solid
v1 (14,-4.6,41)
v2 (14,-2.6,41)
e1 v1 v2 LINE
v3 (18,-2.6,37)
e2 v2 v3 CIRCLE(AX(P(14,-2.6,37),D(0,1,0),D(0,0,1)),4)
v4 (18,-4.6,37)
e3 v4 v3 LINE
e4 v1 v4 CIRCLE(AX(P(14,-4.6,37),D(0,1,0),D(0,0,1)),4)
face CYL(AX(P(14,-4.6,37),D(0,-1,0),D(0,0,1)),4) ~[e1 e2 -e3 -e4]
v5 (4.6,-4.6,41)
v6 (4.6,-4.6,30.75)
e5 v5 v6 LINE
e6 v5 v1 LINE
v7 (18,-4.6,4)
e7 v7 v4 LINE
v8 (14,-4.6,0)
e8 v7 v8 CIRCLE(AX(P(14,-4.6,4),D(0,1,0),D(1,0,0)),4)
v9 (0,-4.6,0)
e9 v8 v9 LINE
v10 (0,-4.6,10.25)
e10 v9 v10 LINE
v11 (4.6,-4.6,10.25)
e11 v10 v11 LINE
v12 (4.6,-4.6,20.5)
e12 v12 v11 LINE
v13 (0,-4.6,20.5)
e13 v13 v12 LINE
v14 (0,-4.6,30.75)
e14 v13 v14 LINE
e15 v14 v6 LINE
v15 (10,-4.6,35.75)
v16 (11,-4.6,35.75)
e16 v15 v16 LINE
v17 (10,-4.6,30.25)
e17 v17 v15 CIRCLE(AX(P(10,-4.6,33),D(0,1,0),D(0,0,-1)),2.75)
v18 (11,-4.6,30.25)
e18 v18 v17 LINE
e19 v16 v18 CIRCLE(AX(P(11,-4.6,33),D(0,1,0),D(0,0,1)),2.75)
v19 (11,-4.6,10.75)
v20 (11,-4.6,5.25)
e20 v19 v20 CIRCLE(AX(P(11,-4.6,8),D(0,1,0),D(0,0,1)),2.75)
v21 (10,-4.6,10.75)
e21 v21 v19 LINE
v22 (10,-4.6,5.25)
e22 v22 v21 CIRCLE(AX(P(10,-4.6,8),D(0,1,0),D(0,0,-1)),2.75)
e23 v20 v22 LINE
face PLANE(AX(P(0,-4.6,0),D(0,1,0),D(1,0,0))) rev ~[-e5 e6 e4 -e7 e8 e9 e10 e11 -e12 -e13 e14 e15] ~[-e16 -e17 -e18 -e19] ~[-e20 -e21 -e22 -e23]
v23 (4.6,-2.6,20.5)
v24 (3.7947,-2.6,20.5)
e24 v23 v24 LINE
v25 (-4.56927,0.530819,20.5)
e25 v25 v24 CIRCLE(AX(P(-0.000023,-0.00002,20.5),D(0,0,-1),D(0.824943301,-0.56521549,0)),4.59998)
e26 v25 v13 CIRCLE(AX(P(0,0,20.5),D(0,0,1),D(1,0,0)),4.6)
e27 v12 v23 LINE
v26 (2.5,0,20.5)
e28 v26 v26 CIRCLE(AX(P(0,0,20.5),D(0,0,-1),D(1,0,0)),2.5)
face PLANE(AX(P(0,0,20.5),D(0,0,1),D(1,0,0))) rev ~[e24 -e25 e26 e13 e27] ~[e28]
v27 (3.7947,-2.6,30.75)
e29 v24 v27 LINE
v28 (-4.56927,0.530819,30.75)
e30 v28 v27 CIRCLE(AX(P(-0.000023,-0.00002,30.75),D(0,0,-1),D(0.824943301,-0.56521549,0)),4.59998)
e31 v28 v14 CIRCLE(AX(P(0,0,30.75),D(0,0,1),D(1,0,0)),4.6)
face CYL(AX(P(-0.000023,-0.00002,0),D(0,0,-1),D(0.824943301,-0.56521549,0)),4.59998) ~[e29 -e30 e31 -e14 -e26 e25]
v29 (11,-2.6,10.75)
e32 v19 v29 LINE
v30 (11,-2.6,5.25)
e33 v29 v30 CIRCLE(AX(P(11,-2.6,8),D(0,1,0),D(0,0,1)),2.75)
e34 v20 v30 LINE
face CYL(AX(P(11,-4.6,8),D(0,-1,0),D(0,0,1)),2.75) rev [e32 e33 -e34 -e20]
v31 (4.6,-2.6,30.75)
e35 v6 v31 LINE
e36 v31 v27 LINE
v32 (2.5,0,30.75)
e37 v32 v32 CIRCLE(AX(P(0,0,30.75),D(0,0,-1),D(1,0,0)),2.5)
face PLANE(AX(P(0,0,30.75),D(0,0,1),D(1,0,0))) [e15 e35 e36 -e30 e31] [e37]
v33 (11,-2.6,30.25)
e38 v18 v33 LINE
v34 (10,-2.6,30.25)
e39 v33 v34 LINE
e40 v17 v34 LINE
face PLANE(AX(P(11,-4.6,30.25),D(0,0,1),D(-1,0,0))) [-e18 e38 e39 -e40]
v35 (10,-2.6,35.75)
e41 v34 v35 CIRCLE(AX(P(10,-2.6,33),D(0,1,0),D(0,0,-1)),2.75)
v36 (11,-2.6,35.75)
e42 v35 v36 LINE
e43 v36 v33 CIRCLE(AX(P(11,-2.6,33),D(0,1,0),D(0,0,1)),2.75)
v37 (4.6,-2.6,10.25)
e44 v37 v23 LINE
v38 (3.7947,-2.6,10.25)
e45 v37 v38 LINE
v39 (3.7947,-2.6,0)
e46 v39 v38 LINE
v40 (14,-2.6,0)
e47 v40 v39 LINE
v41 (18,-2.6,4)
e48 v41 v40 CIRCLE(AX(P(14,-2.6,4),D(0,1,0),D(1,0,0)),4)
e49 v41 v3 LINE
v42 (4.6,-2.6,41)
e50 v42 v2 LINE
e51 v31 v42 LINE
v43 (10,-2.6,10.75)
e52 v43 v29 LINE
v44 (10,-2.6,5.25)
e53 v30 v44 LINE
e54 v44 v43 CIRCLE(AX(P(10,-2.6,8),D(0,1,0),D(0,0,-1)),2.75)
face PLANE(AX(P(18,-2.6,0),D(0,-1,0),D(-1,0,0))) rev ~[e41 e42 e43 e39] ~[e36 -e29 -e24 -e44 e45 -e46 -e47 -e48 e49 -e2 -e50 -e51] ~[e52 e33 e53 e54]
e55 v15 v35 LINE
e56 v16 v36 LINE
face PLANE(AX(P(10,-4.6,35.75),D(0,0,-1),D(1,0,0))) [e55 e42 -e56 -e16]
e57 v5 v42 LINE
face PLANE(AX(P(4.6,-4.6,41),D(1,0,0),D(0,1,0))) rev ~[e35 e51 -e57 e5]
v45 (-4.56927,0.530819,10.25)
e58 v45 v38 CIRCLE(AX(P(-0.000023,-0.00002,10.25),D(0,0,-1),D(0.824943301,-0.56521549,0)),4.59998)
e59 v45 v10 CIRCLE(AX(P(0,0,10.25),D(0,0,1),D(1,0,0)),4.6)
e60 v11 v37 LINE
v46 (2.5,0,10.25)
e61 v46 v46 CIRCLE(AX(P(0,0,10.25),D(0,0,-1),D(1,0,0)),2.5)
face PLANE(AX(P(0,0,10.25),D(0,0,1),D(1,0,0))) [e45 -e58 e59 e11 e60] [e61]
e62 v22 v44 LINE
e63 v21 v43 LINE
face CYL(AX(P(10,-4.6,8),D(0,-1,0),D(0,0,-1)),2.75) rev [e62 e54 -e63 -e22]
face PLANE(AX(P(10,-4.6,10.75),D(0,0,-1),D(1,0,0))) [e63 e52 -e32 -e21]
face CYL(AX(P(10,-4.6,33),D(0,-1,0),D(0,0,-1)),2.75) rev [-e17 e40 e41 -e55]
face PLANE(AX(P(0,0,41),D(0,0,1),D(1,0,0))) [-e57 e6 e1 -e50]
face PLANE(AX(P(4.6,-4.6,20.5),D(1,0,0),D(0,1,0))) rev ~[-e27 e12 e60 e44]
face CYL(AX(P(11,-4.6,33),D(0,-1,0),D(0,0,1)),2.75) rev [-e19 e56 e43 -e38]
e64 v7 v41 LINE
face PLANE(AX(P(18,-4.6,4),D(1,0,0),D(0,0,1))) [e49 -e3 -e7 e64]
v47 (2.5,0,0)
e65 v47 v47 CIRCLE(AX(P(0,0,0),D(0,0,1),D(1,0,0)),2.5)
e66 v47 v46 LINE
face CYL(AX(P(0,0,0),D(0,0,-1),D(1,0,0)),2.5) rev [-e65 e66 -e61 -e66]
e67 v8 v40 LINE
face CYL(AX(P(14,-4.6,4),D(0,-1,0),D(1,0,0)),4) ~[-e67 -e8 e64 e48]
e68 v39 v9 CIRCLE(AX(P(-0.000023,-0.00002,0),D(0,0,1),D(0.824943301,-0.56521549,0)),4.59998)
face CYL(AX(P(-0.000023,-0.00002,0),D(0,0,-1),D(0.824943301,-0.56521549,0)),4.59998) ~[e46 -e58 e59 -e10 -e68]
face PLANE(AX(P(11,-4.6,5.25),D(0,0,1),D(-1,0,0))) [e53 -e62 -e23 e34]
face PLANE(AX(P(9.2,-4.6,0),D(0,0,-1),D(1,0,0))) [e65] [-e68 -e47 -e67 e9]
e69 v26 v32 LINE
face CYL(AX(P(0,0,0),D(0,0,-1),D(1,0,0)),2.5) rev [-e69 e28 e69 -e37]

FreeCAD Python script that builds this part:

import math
import FreeCAD as App
import Part
import Sketcher

V = App.Vector

doc = App.newDocument("Part")
params = doc.addObject("Spreadsheet::Sheet", "Params")
for row, (alias, value) in enumerate([
    ("sketch1_diameter", "5 mm"),
    ("sketch1_radius", "4.6 mm"),
    ("sketch1_width", "18 mm"),
    ("sketch1_height", "2 mm"),
    ("pad1_length", "41 mm"),
    ("sketch2_radius", "4 mm"),
    ("sketch2_height", "2 mm"),
    ("sketch2_height2", "45 mm"),
    ("sketch2_width", "4.8 mm"),
    ("sketch2_width2", "10.8 mm"),
    ("pocket1_length", "2 mm"),
    ("sketch3_radius", "4.6 mm"),
    ("pocket2_length", "10.25 mm"),
    ("sketch4_radius", "4.6 mm"),
    ("pocket3_length", "10.25 mm"),
    ("sketch5_width", "1 mm"),
    ("sketch5_radius", "2.75 mm"),
    ("pocket4_length", "2 mm"),
    ("sketch6_width", "1 mm"),
    ("sketch6_radius", "2.75 mm"),
    ("pocket5_length", "2 mm"),
], start=1):
    params.set(f"A{row}", alias)
    params.set(f"B{row}", "=" + value)
    params.setAlias(f"B{row}", alias)

body = doc.addObject("PartDesign::Body", "Body")

# Sketch on XY plane
sketch1 = body.newObject("Sketcher::SketchObject", "Sketch")
sketch1.AttachmentSupport = (doc.getObject("XY_Plane"), [""])
sketch1.MapMode = "FlatFace"
sketch1.addGeometry([
    Part.LineSegment(V(18, -2.6, 0), V(3.8, -2.6, 0)),  # 0
    Part.ArcOfCircle(Part.Circle(V(0, 0, 0), V(0, 0, 1), 4.6), math.radians(-34), math.radians(270)),  # 1
    Part.LineSegment(V(0, -4.6, 0), V(18, -4.6, 0)),  # 2
    Part.LineSegment(V(18, -4.6, 0), V(18, -2.6, 0)),  # 3
    Part.Circle(V(0, 0, 0), V(0, 0, 1), 2.5),  # 4
], False)
sketch1.addConstraint([
    Sketcher.Constraint("Coincident", 0, 2, 1, 1),
    Sketcher.Constraint("Tangent", 1, 2, 2, 1),
    Sketcher.Constraint("Coincident", 2, 2, 3, 1),
    Sketcher.Constraint("Coincident", 3, 2, 0, 1),
    Sketcher.Constraint("Horizontal", 0),
    Sketcher.Constraint("Horizontal", 2),
    Sketcher.Constraint("Vertical", 3),
    Sketcher.Constraint("Coincident", 1, 3, -1, 1),
    Sketcher.Constraint("Coincident", 4, 3, -1, 1),
    Sketcher.Constraint("Diameter", 4, 5.0),
    Sketcher.Constraint("Radius", 1, 4.6),
    Sketcher.Constraint("DistanceX", 2, 1, 2, 2, 18.0),
    Sketcher.Constraint("DistanceY", 3, 1, 3, 2, 2.0),
])
sketch1.setExpression("Constraints[9]", "Params.sketch1_diameter")
sketch1.setExpression("Constraints[10]", "Params.sketch1_radius")
sketch1.setExpression("Constraints[11]", "Params.sketch1_width")
sketch1.setExpression("Constraints[12]", "Params.sketch1_height")
pad1 = body.newObject("PartDesign::Pad", "Pad")
pad1.Profile = sketch1
pad1.setExpression("Length", "Params.pad1_length")

# Sketch on XZ plane
sketch2 = body.newObject("Sketcher::SketchObject", "Sketch001")
sketch2.AttachmentSupport = (doc.getObject("XZ_Plane"), [""])
sketch2.MapMode = "FlatFace"
sketch2.AttachmentOffset = App.Placement(V(0, 0, 4.6), App.Rotation())
sketch2.addGeometry([
    Part.LineSegment(V(14, 41, 0), V(9.2, 41, 0)),  # 0
    Part.LineSegment(V(9.2, 41, 0), V(9.2, 43, 0)),  # 1
    Part.LineSegment(V(9.2, 43, 0), V(20, 43, 0)),  # 2
    Part.LineSegment(V(20, 43, 0), V(20, -2, 0)),  # 3
    Part.LineSegment(V(20, -2, 0), V(9.2, -2, 0)),  # 4
    Part.LineSegment(V(9.2, -2, 0), V(9.2, 0, 0)),  # 5
    Part.LineSegment(V(9.2, 0, 0), V(14, 0, 0)),  # 6
    Part.ArcOfCircle(Part.Circle(V(14, 4, 0), V(0, 0, 1), 4), math.radians(-90), math.radians(0)),  # 7
    Part.LineSegment(V(18, 4, 0), V(18, 37, 0)),  # 8
    Part.ArcOfCircle(Part.Circle(V(14, 37, 0), V(0, 0, 1), 4), math.radians(0), math.radians(90)),  # 9
], False)
sketch2.addConstraint([
    Sketcher.Constraint("Coincident", 0, 2, 1, 1),
    Sketcher.Constraint("Coincident", 1, 2, 2, 1),
    Sketcher.Constraint("Coincident", 2, 2, 3, 1),
    Sketcher.Constraint("Coincident", 3, 2, 4, 1),
    Sketcher.Constraint("Coincident", 4, 2, 5, 1),
    Sketcher.Constraint("Coincident", 5, 2, 6, 1),
    Sketcher.Constraint("Tangent", 6, 2, 7, 1),
    Sketcher.Constraint("Tangent", 7, 2, 8, 1),
    Sketcher.Constraint("Tangent", 8, 2, 9, 1),
    Sketcher.Constraint("Tangent", 9, 2, 0, 1),
    Sketcher.Constraint("Horizontal", 0),
    Sketcher.Constraint("Vertical", 1),
    Sketcher.Constraint("Horizontal", 2),
    Sketcher.Constraint("Vertical", 3),
    Sketcher.Constraint("Horizontal", 4),
    Sketcher.Constraint("Vertical", 5),
    Sketcher.Constraint("Horizontal", 6),
    Sketcher.Constraint("Vertical", 8),
    Sketcher.Constraint("Equal", 7, 9),
    Sketcher.Constraint("PointOnObject", 5, 2, -1),
    Sketcher.Constraint("Vertical", 1, 2, 4, 2),
    Sketcher.Constraint("Equal", 1, 5),
    Sketcher.Constraint("Radius", 7, 4.0),
    Sketcher.Constraint("DistanceY", 1, 1, 1, 2, 2.0),
    Sketcher.Constraint("DistanceY", 3, 2, 3, 1, 45.0),
    Sketcher.Constraint("DistanceX", 0, 2, 0, 1, 4.8),
    Sketcher.Constraint("DistanceX", 2, 1, 2, 2, 10.8),
    Sketcher.Constraint("DistanceX", -1, 1, 7, 3, 14.0),
])
sketch2.setExpression("Constraints[22]", "Params.sketch2_radius")
sketch2.setExpression("Constraints[23]", "Params.sketch2_height")
sketch2.setExpression("Constraints[24]", "Params.sketch2_height2")
sketch2.setExpression("Constraints[25]", "Params.sketch2_width")
sketch2.setExpression("Constraints[26]", "Params.sketch2_width2")
pocket1 = body.newObject("PartDesign::Pocket", "Pocket")
pocket1.Profile = sketch2
pocket1.setExpression("Length", "Params.pocket1_length")

# Sketch on XY plane
sketch3 = body.newObject("Sketcher::SketchObject", "Sketch002")
sketch3.AttachmentSupport = (doc.getObject("XY_Plane"), [""])
sketch3.MapMode = "FlatFace"
sketch3.AttachmentOffset = App.Placement(V(0, 0, 20.5), App.Rotation())
sketch3.addGeometry([
    Part.LineSegment(V(4.6, -4.6, 0), V(4.6, 0, 0)),
    Part.ArcOfCircle(Part.Circle(V(0, 0, 0), V(0, 0, 1), 4.6), math.radians(0), math.radians(270)),
    Part.LineSegment(V(0, -4.6, 0), V(4.6, -4.6, 0)),
], False)
sketch3.addConstraint([
    Sketcher.Constraint("Tangent", 0, 2, 1, 1),
    Sketcher.Constraint("Tangent", 1, 2, 2, 1),
    Sketcher.Constraint("Coincident", 2, 2, 0, 1),
    Sketcher.Constraint("Vertical", 0),
    Sketcher.Constraint("Horizontal", 2),
    Sketcher.Constraint("Coincident", 1, 3, -1, 1),
    Sketcher.Constraint("Radius", 1, 4.6),
])
sketch3.setExpression("Constraints[6]", "Params.sketch3_radius")
pocket2 = body.newObject("PartDesign::Pocket", "Pocket001")
pocket2.Profile = sketch3
pocket2.setExpression("Length", "Params.pocket2_length")

# Sketch on XY plane
sketch4 = body.newObject("Sketcher::SketchObject", "Sketch003")
sketch4.AttachmentSupport = (doc.getObject("XY_Plane"), [""])
sketch4.MapMode = "FlatFace"
sketch4.AttachmentOffset = App.Placement(V(0, 0, 41), App.Rotation())
sketch4.addGeometry([
    Part.LineSegment(V(4.6, -4.6, 0), V(4.6, 0, 0)),
    Part.ArcOfCircle(Part.Circle(V(0, 0, 0), V(0, 0, 1), 4.6), math.radians(0), math.radians(270)),
    Part.LineSegment(V(0, -4.6, 0), V(4.6, -4.6, 0)),
], False)
sketch4.addConstraint([
    Sketcher.Constraint("Tangent", 0, 2, 1, 1),
    Sketcher.Constraint("Tangent", 1, 2, 2, 1),
    Sketcher.Constraint("Coincident", 2, 2, 0, 1),
    Sketcher.Constraint("Vertical", 0),
    Sketcher.Constraint("Horizontal", 2),
    Sketcher.Constraint("Coincident", 1, 3, -1, 1),
    Sketcher.Constraint("Radius", 1, 4.6),
])
sketch4.setExpression("Constraints[6]", "Params.sketch4_radius")
pocket3 = body.newObject("PartDesign::Pocket", "Pocket002")
pocket3.Profile = sketch4
pocket3.setExpression("Length", "Params.pocket3_length")

# Sketch on XZ plane
sketch5 = body.newObject("Sketcher::SketchObject", "Sketch004")
sketch5.AttachmentSupport = (doc.getObject("XZ_Plane"), [""])
sketch5.MapMode = "FlatFace"
sketch5.AttachmentOffset = App.Placement(V(0, 0, 4.6), App.Rotation())
sketch5.addGeometry([
    Part.LineSegment(V(11, 5.2, 0), V(10, 5.2, 0)),
    Part.ArcOfCircle(Part.Circle(V(10, 8, 0), V(0, 0, 1), 2.8), math.radians(90), math.radians(270)),
    Part.LineSegment(V(10, 10.8, 0), V(11, 10.8, 0)),
    Part.ArcOfCircle(Part.Circle(V(11, 8, 0), V(0, 0, 1), 2.8), math.radians(-90), math.radians(90)),
], False)
sketch5.addConstraint([
    Sketcher.Constraint("Tangent", 0, 2, 1, 2),
    Sketcher.Constraint("Tangent", 1, 1, 2, 1),
    Sketcher.Constraint("Tangent", 2, 2, 3, 2),
    Sketcher.Constraint("Tangent", 3, 1, 0, 1),
    Sketcher.Constraint("Horizontal", 0),
    Sketcher.Constraint("Horizontal", 2),
    Sketcher.Constraint("DistanceX", 0, 2, 0, 1, 1.0),
    Sketcher.Constraint("Radius", 1, 2.75),
    Sketcher.Constraint("DistanceX", -1, 1, 1, 3, 10.0),
    Sketcher.Constraint("DistanceY", -1, 1, 1, 3, 8.0),
])
sketch5.setExpression("Constraints[6]", "Params.sketch5_width")
sketch5.setExpression("Constraints[7]", "Params.sketch5_radius")
pocket4 = body.newObject("PartDesign::Pocket", "Pocket003")
pocket4.Profile = sketch5
pocket4.setExpression("Length", "Params.pocket4_length")

# Sketch on XZ plane
sketch6 = body.newObject("Sketcher::SketchObject", "Sketch005")
sketch6.AttachmentSupport = (doc.getObject("XZ_Plane"), [""])
sketch6.MapMode = "FlatFace"
sketch6.AttachmentOffset = App.Placement(V(0, 0, 4.6), App.Rotation())
sketch6.addGeometry([
    Part.LineSegment(V(11, 30.2, 0), V(10, 30.2, 0)),
    Part.ArcOfCircle(Part.Circle(V(10, 33, 0), V(0, 0, 1), 2.8), math.radians(90), math.radians(270)),
    Part.LineSegment(V(10, 35.8, 0), V(11, 35.8, 0)),
    Part.ArcOfCircle(Part.Circle(V(11, 33, 0), V(0, 0, 1), 2.8), math.radians(-90), math.radians(90)),
], False)
sketch6.addConstraint([
    Sketcher.Constraint("Tangent", 0, 2, 1, 2),
    Sketcher.Constraint("Tangent", 1, 1, 2, 1),
    Sketcher.Constraint("Tangent", 2, 2, 3, 2),
    Sketcher.Constraint("Tangent", 3, 1, 0, 1),
    Sketcher.Constraint("Horizontal", 0),
    Sketcher.Constraint("Horizontal", 2),
    Sketcher.Constraint("DistanceX", 0, 2, 0, 1, 1.0),
    Sketcher.Constraint("Radius", 1, 2.75),
    Sketcher.Constraint("DistanceX", -1, 1, 1, 3, 10.0),
    Sketcher.Constraint("DistanceY", -1, 1, 1, 3, 33.0),
])
sketch6.setExpression("Constraints[6]", "Params.sketch6_width")
sketch6.setExpression("Constraints[7]", "Params.sketch6_radius")
pocket5 = body.newObject("PartDesign::Pocket", "Pocket004")
pocket5.Profile = sketch6
pocket5.setExpression("Length", "Params.pocket5_length")

doc.recompute()
